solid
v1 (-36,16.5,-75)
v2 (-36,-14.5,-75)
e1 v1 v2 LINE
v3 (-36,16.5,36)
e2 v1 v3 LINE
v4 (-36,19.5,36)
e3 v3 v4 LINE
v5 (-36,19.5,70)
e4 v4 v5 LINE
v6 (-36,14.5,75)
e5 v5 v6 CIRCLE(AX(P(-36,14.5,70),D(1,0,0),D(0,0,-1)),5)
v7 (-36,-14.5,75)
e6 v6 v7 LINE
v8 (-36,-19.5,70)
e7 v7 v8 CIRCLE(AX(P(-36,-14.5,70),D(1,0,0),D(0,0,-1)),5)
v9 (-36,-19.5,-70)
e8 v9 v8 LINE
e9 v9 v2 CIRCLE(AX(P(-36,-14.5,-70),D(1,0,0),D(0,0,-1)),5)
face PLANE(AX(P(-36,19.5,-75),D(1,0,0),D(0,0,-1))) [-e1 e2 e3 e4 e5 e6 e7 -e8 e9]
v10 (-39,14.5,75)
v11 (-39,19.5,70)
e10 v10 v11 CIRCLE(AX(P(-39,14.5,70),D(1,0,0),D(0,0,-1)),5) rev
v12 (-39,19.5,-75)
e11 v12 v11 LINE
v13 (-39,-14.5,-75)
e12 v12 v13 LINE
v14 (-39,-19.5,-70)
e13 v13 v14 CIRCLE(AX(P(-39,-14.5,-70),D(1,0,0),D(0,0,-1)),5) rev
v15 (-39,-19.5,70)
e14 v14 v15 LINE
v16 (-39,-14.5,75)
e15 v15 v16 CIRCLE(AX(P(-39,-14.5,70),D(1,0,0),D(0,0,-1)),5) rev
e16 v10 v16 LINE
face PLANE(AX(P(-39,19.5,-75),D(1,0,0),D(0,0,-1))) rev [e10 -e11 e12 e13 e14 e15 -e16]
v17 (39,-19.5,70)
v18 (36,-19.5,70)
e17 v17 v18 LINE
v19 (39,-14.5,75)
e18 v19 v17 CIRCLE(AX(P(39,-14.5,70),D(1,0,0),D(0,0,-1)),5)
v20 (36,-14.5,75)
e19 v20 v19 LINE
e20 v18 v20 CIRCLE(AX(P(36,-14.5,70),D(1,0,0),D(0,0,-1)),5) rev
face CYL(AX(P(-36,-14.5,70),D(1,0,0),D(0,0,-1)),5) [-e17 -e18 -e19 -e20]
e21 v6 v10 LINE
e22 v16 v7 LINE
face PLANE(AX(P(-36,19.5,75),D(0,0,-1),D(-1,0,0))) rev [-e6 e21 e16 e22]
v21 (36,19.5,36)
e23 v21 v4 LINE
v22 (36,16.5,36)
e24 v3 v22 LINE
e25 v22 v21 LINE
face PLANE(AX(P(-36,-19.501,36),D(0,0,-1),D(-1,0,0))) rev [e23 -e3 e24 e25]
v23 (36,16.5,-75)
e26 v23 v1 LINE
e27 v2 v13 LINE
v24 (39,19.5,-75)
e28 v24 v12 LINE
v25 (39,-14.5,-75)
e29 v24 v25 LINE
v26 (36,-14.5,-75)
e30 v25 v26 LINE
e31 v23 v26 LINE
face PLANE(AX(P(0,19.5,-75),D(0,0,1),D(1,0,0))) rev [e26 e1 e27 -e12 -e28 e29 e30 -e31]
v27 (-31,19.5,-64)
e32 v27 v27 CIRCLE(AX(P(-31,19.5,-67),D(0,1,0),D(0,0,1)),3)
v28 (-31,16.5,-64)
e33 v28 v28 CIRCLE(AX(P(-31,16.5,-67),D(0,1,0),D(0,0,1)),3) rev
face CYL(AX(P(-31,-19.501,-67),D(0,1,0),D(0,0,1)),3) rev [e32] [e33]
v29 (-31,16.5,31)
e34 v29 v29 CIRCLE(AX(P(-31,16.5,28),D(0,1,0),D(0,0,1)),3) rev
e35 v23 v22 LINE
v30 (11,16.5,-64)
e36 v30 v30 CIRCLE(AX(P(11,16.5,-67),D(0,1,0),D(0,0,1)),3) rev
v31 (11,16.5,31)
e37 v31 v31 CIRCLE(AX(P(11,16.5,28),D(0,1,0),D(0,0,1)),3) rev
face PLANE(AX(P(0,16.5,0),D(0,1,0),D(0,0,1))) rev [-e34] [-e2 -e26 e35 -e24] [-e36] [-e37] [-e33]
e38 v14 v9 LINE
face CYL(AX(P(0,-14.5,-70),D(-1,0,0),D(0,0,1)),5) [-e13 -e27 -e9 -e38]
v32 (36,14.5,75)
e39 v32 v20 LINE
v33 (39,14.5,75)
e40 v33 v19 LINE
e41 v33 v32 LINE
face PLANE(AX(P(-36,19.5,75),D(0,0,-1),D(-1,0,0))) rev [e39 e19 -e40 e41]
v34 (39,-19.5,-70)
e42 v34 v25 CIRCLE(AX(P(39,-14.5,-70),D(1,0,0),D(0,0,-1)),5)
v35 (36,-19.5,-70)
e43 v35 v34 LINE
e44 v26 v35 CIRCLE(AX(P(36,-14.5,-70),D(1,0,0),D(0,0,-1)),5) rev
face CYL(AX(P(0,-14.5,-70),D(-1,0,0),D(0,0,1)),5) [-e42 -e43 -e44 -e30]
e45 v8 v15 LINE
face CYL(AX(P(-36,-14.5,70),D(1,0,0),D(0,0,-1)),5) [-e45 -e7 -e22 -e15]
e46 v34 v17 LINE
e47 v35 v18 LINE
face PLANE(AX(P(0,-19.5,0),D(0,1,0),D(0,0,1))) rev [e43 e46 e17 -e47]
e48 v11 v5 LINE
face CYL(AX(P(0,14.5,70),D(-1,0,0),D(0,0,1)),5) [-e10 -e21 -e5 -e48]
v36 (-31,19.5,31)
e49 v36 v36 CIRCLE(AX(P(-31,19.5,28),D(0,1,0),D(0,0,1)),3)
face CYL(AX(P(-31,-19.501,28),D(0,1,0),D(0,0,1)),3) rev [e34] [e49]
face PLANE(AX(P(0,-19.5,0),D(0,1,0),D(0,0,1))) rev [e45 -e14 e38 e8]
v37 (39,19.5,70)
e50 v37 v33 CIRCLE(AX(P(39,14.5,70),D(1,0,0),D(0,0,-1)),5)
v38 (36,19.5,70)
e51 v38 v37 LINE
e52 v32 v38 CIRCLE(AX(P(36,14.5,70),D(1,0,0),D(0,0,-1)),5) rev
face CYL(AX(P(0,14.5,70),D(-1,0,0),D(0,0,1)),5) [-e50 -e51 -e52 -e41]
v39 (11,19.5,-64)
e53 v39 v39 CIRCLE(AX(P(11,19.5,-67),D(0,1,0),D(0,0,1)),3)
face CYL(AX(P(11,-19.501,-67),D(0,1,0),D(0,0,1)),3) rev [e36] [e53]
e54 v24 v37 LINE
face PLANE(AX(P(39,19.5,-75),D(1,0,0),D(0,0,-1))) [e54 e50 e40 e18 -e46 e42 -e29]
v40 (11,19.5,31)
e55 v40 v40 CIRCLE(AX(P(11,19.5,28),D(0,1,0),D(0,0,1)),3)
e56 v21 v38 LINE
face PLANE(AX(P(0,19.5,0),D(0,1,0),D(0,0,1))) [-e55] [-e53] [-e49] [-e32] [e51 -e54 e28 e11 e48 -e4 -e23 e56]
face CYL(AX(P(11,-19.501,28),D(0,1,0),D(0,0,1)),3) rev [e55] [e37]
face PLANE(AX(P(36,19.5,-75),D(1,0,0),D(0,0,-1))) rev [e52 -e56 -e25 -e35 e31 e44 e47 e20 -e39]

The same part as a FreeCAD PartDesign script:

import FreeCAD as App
import Part
import Sketcher

V = App.Vector
Q = App.Units.Quantity


def edges_at(feature, points):
    """Names of the edges that pass closest to the given points."""
    edges = feature.Shape.Edges
    near = lambda p: min(range(len(edges)), key=lambda i: edges[i].distToShape(Part.Vertex(*p))[0])
    return sorted({f"Edge{near(p) + 1}" for p in points})


def faces_at(feature, points):
    """Names of the faces that lie closest to the given points."""
    faces = feature.Shape.Faces
    near = lambda p: min(range(len(faces)), key=lambda i: faces[i].distToShape(Part.Vertex(*p))[0])
    return sorted({f"Face{near(p) + 1}" for p in points})


def add_polygon(sketch, points):
    """Adds a closed chain of lines whose ends are joined by coincident constraints."""
    first, n = sketch.GeometryCount, len(points)
    for a, b in zip(points, points[1:] + points[:1]):
        sketch.addGeometry(Part.LineSegment(App.Vector(*a, 0), App.Vector(*b, 0)), False)
    for i in range(n):
        sketch.addConstraint(Sketcher.Constraint("Coincident", first + i, 2, first + (i + 1) % n, 1))

doc = App.newDocument("Part")
body = doc.addObject("PartDesign::Body", "Body")

# Sketch on XZ plane
sketch1 = body.newObject("Sketcher::SketchObject", "Sketch")
sketch1.AttachmentSupport = (doc.getObject("XZ_Plane"), [""])
sketch1.MapMode = "FlatFace"
add_polygon(sketch1, [(0, 75), (0, -75), (-39, -75), (-39, 75)])  # lines 0-3
sketch1.addConstraint([
    Sketcher.Constraint("Vertical", 0),
    Sketcher.Constraint("Horizontal", 1),
    Sketcher.Constraint("Vertical", 2),
    Sketcher.Constraint("Horizontal", 3),
    Sketcher.Constraint("Symmetric", 0, 2, 3, 2, -1, 1),
    Sketcher.Constraint("DistanceX", 1, 2, 1, 1, Q("39 mm")),
    Sketcher.Constraint("DistanceY", 0, 2, 0, 1, Q("150 mm")),
])
pad1 = body.newObject("PartDesign::Pad", "Pad")
pad1.Profile = sketch1
pad1.Length = 39
pad1.Midplane = True
doc.recompute()

mirrored = body.newObject("PartDesign::Mirrored", "Mirrored")
mirrored.Originals = [pad1]
mirrored.MirrorPlane = (doc.getObject("YZ_Plane"), [""])
body.Tip = mirrored
doc.recompute()

thickness = body.newObject("PartDesign::Thickness", "Thickness")
thickness.Base = (mirrored, faces_at(mirrored, [(0, 0, 75), (0, 0, -75), (0, -19.5, 0)]))
thickness.Value = 3
thickness.Reversed = True
thickness.Join = "Intersection"

# Sketch on XZ plane
sketch2 = body.newObject("Sketcher::SketchObject", "Sketch001")
sketch2.AttachmentSupport = (doc.getObject("XZ_Plane"), [""])
sketch2.MapMode = "FlatFace"
sketch2.AttachmentOffset = App.Placement(V(0, 0, -19.5), App.Rotation())
add_polygon(sketch2, [(-36, 36), (-36, 75), (0, 75), (0, 36)])  # lines 0-3
sketch2.addConstraint([
    Sketcher.Constraint("Vertical", 0),
    Sketcher.Constraint("Horizontal", 1),
    Sketcher.Constraint("Vertical", 2),
    Sketcher.Constraint("Horizontal", 3),
    Sketcher.Constraint("PointOnObject", 1, 2, -2),
    Sketcher.Constraint("DistanceX", 1, 1, 1, 2, Q("36 mm")),
    Sketcher.Constraint("DistanceY", 0, 1, 0, 2, Q("39 mm")),
    Sketcher.Constraint("DistanceY", -1, 1, 0, 2, Q("75 mm")),
])
pocket1 = body.newObject("PartDesign::Pocket", "Pocket")
pocket1.Profile = sketch2
pocket1.Length = 3
pocket1.Reversed = True
doc.recompute()

mirrored2 = body.newObject("PartDesign::Mirrored", "Mirrored001")
mirrored2.Originals = [pocket1]
mirrored2.MirrorPlane = (doc.getObject("YZ_Plane"), [""])
body.Tip = mirrored2
doc.recompute()

fillet = body.newObject("PartDesign::Fillet", "Fillet")
fillet.Base = (mirrored2, edges_at(mirrored2, [
    (-37.5, 19.5, 75),
    (-37.5, -19.5, -75),
    (37.5, -19.5, 75),
    (37.5, 19.5, 75),
    (-37.5, -19.5, 75),
    (37.5, -19.5, -75),
]))
fillet.Radius = 5

# Sketch on XZ plane
sketch3 = body.newObject("Sketcher::SketchObject", "Sketch002")
sketch3.AttachmentSupport = (doc.getObject("XZ_Plane"), [""])
sketch3.MapMode = "FlatFace"
sketch3.AttachmentOffset = App.Placement(V(0, 0, -19.5), App.Rotation())
sketch3.addGeometry(Part.Circle(V(-31, -67, 0), V(0, 0, 1), 3), False)
sketch3.addConstraint([
    Sketcher.Constraint("Diameter", 0, Q("6 mm")),
    Sketcher.Constraint("DistanceX", 0, 3, -1, 1, Q("31 mm")),
    Sketcher.Constraint("DistanceY", 0, 3, -1, 1, Q("67 mm")),
])
pocket2 = body.newObject("PartDesign::Pocket", "Pocket001")
pocket2.Profile = sketch3
pocket2.Type = "UpToFirst"
pocket2.Reversed = True

# Sketch on XZ plane
sketch4 = body.newObject("Sketcher::SketchObject", "Sketch003")
sketch4.AttachmentSupport = (doc.getObject("XZ_Plane"), [""])
sketch4.MapMode = "FlatFace"
sketch4.AttachmentOffset = App.Placement(V(0, 0, -19.5), App.Rotation())
sketch4.addGeometry(Part.Circle(V(-31, 28, 0), V(0, 0, 1), 3), False)
sketch4.addConstraint([
    Sketcher.Constraint("Diameter", 0, Q("6 mm")),
    Sketcher.Constraint("DistanceX", 0, 3, -1, 1, Q("31 mm")),
    Sketcher.Constraint("DistanceY", -1, 1, 0, 3, Q("28 mm")),
])
pocket3 = body.newObject("PartDesign::Pocket", "Pocket002")
pocket3.Profile = sketch4
pocket3.Type = "UpToFirst"
pocket3.Reversed = True

# Sketch on XZ plane
sketch5 = body.newObject("Sketcher::SketchObject", "Sketch004")
sketch5.AttachmentSupport = (doc.getObject("XZ_Plane"), [""])
sketch5.MapMode = "FlatFace"
sketch5.AttachmentOffset = App.Placement(V(0, 0, -19.5), App.Rotation())
sketch5.addGeometry(Part.Circle(V(11, 28, 0), V(0, 0, 1), 3), False)
sketch5.addConstraint([
    Sketcher.Constraint("Diameter", 0, Q("6 mm")),
    Sketcher.Constraint("DistanceX", -1, 1, 0, 3, Q("11 mm")),
    Sketcher.Constraint("DistanceY", -1, 1, 0, 3, Q("28 mm")),
])
pocket4 = body.newObject("PartDesign::Pocket", "Pocket003")
pocket4.Profile = sketch5
pocket4.Type = "UpToFirst"
pocket4.Reversed = True

# Sketch on XZ plane
sketch6 = body.newObject("Sketcher::SketchObject", "Sketch005")
sketch6.AttachmentSupport = (doc.getObject("XZ_Plane"), [""])
sketch6.MapMode = "FlatFace"
sketch6.AttachmentOffset = App.Placement(V(0, 0, -19.5), App.Rotation())
sketch6.addGeometry(Part.Circle(V(11, -67, 0), V(0, 0, 1), 3), False)
sketch6.addConstraint([
    Sketcher.Constraint("Diameter", 0, Q("6 mm")),
    Sketcher.Constraint("DistanceX", -1, 1, 0, 3, Q("11 mm")),
    Sketcher.Constraint("DistanceY", 0, 3, -1, 1, Q("67 mm")),
])
pocket5 = body.newObject("PartDesign::Pocket", "Pocket004")
pocket5.Profile = sketch6
pocket5.Type = "UpToFirst"
pocket5.Reversed = True

doc.recompute()
